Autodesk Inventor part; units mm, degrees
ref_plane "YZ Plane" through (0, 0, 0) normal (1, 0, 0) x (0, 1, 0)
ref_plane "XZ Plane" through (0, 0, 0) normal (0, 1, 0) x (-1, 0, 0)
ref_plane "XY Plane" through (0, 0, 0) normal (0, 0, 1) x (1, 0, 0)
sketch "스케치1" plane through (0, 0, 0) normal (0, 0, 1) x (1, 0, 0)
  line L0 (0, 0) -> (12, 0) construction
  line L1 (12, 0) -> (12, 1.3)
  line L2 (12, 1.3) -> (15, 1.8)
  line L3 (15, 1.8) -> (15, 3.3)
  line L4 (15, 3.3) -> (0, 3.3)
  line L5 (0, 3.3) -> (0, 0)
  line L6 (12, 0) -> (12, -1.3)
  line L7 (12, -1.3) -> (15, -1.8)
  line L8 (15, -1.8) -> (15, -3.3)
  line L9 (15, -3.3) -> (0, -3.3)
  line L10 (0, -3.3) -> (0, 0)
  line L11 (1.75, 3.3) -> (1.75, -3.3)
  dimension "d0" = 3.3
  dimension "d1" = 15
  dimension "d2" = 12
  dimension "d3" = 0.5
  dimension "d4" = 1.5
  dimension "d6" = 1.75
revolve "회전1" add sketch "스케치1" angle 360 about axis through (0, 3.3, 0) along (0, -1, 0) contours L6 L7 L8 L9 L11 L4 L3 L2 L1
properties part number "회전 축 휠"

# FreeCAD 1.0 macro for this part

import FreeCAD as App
import Part
import Sketcher
from FreeCAD import Vector


def add_polygon(sketch, points):
    """Adds a closed chain of lines whose ends are joined by coincident constraints."""
    first, n = sketch.GeometryCount, len(points)
    for a, b in zip(points, points[1:] + points[:1]):
        sketch.addGeometry(Part.LineSegment(App.Vector(*a, 0), App.Vector(*b, 0)), False)
    for i in range(n):
        sketch.addConstraint(Sketcher.Constraint("Coincident", first + i, 2, first + (i + 1) % n, 1))

doc = App.newDocument("Part")
body = doc.addObject("PartDesign::Body", "Body")

sketch1 = body.newObject("Sketcher::SketchObject", "Sketch")
sketch1.AttachmentSupport = (doc.getObject("XY_Plane"), [""])
sketch1.MapMode = "FlatFace"
add_polygon(sketch1, [(12, -1.3), (12, 1.3), (15, 1.8), (15, 3.3), (1.8, 3.3), (1.8, -3.3), (15, -3.3), (15, -1.8)])
sketch1.addConstraint(Sketcher.Constraint("Vertical", 0))
sketch1.addConstraint(Sketcher.Constraint("Vertical", 2))
sketch1.addConstraint(Sketcher.Constraint("Horizontal", 3))
sketch1.addConstraint(Sketcher.Constraint("Vertical", 4))
sketch1.addConstraint(Sketcher.Constraint("Horizontal", 5))
sketch1.addConstraint(Sketcher.Constraint("Vertical", 6))
sketch1.addConstraint(Sketcher.Constraint("Symmetric", 2, 2, 5, 2, -1))
sketch1.addConstraint(Sketcher.Constraint("Equal", 2, 6))
sketch1.addConstraint(Sketcher.Constraint("Equal", 1, 7))
sketch1.addConstraint(Sketcher.Constraint("DistanceY", 2, 1, 2, 2, 1.5))
sketch1.addConstraint(Sketcher.Constraint("DistanceX", -1, 1, 0, 2, 12.0))
sketch1.addConstraint(Sketcher.Constraint("DistanceX", -1, 1, 1, 2, 15.0))
sketch1.addConstraint(Sketcher.Constraint("DistanceY", -1, 1, 2, 2, 3.3))
sketch1.addConstraint(Sketcher.Constraint("DistanceY", 0, 2, 1, 2, 0.5))
sketch1.addConstraint(Sketcher.Constraint("DistanceX", -1, 1, 3, 2, 1.75))
revolution = body.newObject("PartDesign::Revolution", "Revolution")
revolution.Profile = sketch1
revolution.ReferenceAxis = (sketch1, ["V_Axis"])
revolution.Angle = 360

doc.recompute()
